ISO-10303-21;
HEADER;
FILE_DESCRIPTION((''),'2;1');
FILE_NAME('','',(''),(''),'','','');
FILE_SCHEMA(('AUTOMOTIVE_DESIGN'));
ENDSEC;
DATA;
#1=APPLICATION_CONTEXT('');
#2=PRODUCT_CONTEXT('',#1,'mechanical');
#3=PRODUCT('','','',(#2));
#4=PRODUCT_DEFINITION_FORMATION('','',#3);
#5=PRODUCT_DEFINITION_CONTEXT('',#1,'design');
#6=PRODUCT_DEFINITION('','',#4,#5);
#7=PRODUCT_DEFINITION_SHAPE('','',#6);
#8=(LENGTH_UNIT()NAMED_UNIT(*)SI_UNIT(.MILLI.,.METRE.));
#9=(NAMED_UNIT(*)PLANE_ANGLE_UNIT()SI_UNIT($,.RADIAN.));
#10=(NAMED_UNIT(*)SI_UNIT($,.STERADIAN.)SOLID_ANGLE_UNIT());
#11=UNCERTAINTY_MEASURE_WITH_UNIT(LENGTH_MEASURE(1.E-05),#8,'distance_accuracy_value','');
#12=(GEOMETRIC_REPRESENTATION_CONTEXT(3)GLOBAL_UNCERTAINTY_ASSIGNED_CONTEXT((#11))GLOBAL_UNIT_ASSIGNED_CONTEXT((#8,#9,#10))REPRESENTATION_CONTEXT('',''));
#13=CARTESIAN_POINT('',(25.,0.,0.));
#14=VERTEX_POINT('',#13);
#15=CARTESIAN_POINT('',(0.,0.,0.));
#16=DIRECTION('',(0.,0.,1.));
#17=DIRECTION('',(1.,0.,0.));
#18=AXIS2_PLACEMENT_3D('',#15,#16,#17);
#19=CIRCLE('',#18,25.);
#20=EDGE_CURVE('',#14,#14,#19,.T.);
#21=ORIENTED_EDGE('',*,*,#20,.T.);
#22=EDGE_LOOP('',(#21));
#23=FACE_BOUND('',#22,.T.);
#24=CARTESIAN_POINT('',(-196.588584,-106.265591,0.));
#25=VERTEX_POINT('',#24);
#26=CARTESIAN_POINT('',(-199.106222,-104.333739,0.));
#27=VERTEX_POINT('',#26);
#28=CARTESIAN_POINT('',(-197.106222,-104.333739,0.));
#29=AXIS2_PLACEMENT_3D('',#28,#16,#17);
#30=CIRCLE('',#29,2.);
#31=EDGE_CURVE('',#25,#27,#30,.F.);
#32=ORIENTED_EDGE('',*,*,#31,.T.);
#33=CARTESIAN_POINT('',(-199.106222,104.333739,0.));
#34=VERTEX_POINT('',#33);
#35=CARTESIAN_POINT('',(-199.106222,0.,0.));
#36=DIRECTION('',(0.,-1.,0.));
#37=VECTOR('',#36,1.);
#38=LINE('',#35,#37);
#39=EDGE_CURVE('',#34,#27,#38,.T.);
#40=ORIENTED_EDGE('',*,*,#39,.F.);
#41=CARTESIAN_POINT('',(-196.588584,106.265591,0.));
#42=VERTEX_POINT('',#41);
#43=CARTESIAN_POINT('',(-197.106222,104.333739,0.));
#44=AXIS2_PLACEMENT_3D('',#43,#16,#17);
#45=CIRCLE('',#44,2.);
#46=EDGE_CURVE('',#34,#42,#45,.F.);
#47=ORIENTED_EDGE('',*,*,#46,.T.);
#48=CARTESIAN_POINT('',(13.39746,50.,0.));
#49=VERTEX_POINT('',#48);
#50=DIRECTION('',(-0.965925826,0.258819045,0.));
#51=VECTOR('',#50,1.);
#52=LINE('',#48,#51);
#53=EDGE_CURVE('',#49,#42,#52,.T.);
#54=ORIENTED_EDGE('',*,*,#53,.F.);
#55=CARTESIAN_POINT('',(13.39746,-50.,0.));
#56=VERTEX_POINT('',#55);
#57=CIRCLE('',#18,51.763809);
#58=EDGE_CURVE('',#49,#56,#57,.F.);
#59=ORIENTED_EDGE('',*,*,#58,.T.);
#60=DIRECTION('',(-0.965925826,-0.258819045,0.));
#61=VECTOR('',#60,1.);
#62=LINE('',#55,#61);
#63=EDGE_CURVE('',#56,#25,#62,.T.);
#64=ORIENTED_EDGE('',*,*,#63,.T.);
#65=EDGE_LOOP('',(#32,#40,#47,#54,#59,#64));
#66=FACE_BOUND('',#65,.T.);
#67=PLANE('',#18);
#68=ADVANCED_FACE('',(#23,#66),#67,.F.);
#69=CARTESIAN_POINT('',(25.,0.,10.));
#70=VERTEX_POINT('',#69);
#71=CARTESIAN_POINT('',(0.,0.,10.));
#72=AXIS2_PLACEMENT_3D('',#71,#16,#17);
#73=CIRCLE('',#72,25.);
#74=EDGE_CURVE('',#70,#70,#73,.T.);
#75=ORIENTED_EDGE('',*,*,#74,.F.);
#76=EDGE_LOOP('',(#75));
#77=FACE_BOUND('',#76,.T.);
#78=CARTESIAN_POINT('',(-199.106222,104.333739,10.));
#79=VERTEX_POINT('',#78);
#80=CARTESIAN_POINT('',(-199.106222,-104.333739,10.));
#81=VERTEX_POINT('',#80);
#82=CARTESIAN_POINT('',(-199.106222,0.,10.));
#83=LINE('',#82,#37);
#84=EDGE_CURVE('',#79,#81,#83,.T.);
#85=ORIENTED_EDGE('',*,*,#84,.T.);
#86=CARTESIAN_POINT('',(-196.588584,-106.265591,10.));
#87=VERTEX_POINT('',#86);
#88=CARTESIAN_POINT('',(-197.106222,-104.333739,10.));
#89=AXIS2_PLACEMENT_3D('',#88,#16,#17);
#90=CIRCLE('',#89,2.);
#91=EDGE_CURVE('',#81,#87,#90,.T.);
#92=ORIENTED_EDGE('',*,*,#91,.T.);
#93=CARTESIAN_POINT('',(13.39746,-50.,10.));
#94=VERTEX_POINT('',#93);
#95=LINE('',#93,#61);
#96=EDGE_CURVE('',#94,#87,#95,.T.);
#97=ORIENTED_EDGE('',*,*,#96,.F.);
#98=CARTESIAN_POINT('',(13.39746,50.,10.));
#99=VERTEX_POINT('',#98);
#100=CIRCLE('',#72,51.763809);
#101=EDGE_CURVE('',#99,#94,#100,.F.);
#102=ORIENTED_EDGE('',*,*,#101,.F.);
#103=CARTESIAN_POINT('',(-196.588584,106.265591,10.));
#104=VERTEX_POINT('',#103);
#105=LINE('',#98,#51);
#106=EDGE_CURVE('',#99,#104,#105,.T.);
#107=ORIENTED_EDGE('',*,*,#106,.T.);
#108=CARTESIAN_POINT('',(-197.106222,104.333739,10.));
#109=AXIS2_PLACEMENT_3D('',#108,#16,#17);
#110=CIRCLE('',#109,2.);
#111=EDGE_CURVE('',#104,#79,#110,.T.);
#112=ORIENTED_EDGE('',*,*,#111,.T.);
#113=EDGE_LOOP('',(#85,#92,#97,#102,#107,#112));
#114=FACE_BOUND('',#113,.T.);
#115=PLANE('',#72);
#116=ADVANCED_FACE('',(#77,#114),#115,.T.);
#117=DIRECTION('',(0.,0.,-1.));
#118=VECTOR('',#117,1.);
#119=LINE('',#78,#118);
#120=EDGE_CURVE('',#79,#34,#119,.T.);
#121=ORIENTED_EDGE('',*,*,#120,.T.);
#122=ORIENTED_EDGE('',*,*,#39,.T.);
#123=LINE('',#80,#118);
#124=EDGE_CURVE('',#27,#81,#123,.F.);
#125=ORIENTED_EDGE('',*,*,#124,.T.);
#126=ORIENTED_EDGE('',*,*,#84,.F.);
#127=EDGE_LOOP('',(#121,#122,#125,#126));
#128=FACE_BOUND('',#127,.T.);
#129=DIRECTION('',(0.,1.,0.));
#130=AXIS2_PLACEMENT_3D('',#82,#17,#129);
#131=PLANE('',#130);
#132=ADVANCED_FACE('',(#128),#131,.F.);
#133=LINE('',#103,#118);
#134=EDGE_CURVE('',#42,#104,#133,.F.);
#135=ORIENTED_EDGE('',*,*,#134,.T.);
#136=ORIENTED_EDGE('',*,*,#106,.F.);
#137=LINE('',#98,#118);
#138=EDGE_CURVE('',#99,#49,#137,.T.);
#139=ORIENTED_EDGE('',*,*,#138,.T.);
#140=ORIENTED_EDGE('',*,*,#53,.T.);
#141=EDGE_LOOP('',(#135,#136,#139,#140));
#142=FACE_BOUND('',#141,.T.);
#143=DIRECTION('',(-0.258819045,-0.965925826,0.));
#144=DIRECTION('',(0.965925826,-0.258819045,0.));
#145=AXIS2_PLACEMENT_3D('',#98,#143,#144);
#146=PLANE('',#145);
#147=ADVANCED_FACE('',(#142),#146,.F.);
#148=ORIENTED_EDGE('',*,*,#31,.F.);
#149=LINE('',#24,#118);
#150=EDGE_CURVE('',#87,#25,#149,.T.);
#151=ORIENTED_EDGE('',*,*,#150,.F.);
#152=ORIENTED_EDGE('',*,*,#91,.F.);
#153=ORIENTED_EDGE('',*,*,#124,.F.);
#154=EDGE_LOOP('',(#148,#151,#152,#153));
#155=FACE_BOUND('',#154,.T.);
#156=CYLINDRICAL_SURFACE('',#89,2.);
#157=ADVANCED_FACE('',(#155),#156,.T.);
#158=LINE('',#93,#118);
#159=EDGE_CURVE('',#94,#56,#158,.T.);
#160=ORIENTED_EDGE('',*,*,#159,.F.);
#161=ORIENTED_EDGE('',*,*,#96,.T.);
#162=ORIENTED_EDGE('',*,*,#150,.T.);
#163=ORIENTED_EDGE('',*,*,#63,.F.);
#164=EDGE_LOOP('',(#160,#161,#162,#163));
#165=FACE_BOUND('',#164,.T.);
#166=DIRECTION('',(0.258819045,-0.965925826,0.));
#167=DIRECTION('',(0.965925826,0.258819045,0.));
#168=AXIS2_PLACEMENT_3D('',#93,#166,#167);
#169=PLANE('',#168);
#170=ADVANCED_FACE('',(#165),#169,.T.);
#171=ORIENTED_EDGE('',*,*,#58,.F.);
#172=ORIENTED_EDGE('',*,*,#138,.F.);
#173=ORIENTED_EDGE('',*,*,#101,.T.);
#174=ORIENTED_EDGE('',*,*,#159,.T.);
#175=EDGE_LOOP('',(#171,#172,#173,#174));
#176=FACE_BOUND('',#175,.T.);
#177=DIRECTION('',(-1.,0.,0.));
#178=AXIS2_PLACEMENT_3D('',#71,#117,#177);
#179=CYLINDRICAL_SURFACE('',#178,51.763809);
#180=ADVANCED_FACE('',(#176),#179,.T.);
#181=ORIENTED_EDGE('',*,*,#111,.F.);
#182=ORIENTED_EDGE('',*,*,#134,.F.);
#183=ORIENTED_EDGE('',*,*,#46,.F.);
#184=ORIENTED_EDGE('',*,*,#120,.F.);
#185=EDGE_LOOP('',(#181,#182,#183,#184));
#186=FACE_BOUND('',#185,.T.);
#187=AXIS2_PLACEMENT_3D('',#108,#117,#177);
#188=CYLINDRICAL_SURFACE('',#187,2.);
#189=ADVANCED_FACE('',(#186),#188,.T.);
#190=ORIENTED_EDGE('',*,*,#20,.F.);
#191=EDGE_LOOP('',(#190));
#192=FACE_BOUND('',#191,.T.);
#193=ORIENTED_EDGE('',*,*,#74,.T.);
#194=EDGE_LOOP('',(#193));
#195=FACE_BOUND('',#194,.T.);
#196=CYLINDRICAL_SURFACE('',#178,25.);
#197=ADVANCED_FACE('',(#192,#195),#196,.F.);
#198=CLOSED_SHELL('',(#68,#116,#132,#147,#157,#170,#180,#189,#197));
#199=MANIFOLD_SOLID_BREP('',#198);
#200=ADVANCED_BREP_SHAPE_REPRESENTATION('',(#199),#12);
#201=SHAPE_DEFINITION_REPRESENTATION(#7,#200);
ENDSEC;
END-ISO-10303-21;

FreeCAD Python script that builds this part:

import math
import FreeCAD as App
import Part
import Sketcher
Q = App.Units.Quantity


def edges_at(feature, points):
    """Names of the edges that pass closest to the given points."""
    edges = feature.Shape.Edges
    near = lambda p: min(range(len(edges)), key=lambda i: edges[i].distToShape(Part.Vertex(*p))[0])
    return sorted({f"Edge{near(p) + 1}" for p in points})

doc = App.newDocument("Part")
params = doc.addObject("Spreadsheet::Sheet", "Params")
for row, (alias, value) in enumerate([
    ("sketch1_diameter", "50 mm"),
    ("sketch1_length", "220 mm"),
    ("pad1_length", "10 mm"),
    ("fillet_radius", "2 mm"),
], start=1):
    params.set(f"A{row}", alias)
    params.set(f"B{row}", "=" + value)
    params.setAlias(f"B{row}", alias)

body = doc.addObject("PartDesign::Body", "Body")

# Sketch on XY plane
sketch1 = body.newObject("Sketcher::SketchObject", "Sketch")
sketch1.AttachmentSupport = (doc.getObject("XY_Plane"), [""])
sketch1.MapMode = "FlatFace"
sketch1.addGeometry(Part.LineSegment(App.Vector(-199, -107, 0), App.Vector(13, -50, 0)), False)
sketch1.addGeometry(Part.ArcOfCircle(Part.Circle(App.Vector(0, 0, 0), App.Vector(0, 0, 1), 52), math.radians(-75), math.radians(75)), False)
sketch1.addGeometry(Part.LineSegment(App.Vector(13, 50, 0), App.Vector(-199, 107, 0)), False)
sketch1.addGeometry(Part.LineSegment(App.Vector(-199, 107, 0), App.Vector(-199, -107, 0)), False)
sketch1.addGeometry(Part.Circle(App.Vector(0, 0, 0), App.Vector(0, 0, 1), 25), False)
sketch1.addConstraint(Sketcher.Constraint("Tangent", 0, 2, 1, 1))
sketch1.addConstraint(Sketcher.Constraint("Tangent", 1, 2, 2, 1))
sketch1.addConstraint(Sketcher.Constraint("Coincident", 2, 2, 3, 1))
sketch1.addConstraint(Sketcher.Constraint("Coincident", 3, 2, 0, 1))
sketch1.addConstraint(Sketcher.Constraint("Vertical", 3))
sketch1.addConstraint(Sketcher.Constraint("Coincident", 1, 3, -1, 1))
sketch1.addConstraint(Sketcher.Constraint("Coincident", 4, 3, -1, 1))
sketch1.addConstraint(Sketcher.Constraint("Vertical", 0, 2, 1, 2))
sketch1.addConstraint(Sketcher.Constraint("Diameter", 4, Q("50 mm")))
sketch1.addConstraint(Sketcher.Constraint("Angle", 0, Q("15 deg")))
sketch1.addConstraint(Sketcher.Constraint("Distance", 0, Q("220 mm")))
sketch1.addConstraint(Sketcher.Constraint("DistanceY", 0, 2, -1, 1, Q("50 mm")))
sketch1.setExpression("Constraints[8]", "Params.sketch1_diameter")
sketch1.setExpression("Constraints[10]", "Params.sketch1_length")
pad1 = body.newObject("PartDesign::Pad", "Pad")
pad1.Profile = sketch1
pad1.setExpression("Length", "Params.pad1_length")
doc.recompute()

fillet = body.newObject("PartDesign::Fillet", "Fillet")
fillet.Base = (pad1, edges_at(pad1, [(-199.106, -106.94, 5), (-199.106, 106.94, 5)]))
fillet.setExpression("Radius", "Params.fillet_radius")

doc.recompute()
